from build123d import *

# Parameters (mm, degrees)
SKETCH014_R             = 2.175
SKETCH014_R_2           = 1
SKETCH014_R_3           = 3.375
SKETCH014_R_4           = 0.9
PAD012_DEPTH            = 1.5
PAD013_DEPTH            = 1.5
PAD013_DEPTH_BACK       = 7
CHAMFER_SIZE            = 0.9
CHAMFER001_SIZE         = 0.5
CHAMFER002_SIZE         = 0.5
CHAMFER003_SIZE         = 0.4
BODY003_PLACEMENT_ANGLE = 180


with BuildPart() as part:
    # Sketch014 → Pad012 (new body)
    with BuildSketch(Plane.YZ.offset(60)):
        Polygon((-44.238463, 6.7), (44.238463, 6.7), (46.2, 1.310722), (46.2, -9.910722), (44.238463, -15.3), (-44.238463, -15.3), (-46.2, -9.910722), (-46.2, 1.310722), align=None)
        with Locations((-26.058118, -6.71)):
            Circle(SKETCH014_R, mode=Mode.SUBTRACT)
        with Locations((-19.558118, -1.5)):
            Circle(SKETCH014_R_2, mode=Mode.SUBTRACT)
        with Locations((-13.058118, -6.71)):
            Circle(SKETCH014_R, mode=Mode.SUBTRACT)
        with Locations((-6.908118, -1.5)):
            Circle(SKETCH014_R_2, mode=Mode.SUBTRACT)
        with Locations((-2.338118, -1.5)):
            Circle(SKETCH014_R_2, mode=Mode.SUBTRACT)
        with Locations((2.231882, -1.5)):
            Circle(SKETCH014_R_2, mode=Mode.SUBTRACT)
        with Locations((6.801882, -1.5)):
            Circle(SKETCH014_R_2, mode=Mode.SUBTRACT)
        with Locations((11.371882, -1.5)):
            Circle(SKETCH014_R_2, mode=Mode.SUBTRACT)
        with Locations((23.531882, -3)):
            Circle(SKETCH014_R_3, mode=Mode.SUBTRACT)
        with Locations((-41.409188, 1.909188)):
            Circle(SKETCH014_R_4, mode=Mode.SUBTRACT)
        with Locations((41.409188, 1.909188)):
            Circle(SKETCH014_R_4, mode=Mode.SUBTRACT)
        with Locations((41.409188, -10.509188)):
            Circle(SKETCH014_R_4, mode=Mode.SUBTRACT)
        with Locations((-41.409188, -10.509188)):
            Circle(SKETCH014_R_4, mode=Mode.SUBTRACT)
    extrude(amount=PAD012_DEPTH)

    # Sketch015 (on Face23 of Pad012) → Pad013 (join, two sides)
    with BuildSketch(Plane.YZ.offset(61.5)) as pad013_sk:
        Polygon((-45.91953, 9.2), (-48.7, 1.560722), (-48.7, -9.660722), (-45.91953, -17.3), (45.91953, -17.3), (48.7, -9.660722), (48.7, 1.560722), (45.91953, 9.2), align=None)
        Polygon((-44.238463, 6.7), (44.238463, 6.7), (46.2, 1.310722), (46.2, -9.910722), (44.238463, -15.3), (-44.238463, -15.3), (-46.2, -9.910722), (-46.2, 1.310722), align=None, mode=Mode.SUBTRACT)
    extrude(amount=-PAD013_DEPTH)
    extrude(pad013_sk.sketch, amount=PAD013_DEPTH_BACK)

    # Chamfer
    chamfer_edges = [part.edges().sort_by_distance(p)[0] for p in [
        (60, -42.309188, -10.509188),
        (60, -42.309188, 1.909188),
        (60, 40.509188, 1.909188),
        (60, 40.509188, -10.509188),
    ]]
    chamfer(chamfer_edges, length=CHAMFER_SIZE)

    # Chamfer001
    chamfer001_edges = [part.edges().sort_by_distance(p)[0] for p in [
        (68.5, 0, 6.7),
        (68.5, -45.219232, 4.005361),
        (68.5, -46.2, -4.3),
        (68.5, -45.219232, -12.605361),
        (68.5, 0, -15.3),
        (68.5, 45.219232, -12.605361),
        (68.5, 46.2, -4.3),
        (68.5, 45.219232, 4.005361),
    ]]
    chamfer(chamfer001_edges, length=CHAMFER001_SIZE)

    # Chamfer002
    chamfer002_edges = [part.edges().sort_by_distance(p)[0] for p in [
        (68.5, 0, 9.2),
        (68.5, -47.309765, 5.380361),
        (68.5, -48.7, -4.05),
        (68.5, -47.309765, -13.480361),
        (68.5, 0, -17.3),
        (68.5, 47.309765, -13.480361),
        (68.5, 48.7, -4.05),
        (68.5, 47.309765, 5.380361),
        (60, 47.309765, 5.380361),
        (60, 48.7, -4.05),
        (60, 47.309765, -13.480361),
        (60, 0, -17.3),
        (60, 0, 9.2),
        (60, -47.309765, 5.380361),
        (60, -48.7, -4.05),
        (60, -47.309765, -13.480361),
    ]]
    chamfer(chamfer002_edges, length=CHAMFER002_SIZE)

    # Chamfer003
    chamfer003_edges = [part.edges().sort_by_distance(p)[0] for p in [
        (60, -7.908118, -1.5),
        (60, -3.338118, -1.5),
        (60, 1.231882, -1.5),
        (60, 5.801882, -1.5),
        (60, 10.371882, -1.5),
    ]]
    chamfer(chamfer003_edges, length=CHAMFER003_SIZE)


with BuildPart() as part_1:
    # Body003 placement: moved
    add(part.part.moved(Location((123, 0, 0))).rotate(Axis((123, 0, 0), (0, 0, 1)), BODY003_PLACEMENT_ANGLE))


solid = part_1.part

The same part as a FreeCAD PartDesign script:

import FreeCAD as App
import Part
import Sketcher
Q = App.Units.Quantity


def edges_at(feature, points):
    """Names of the edges that pass closest to the given points."""
    edges = feature.Shape.Edges
    near = lambda p: min(range(len(edges)), key=lambda i: edges[i].distToShape(Part.Vertex(*p))[0])
    return sorted({f"Edge{near(p) + 1}" for p in points})


def add_polygon(sketch, points):
    """Adds a closed chain of lines whose ends are joined by coincident constraints."""
    first, n = sketch.GeometryCount, len(points)
    for a, b in zip(points, points[1:] + points[:1]):
        sketch.addGeometry(Part.LineSegment(App.Vector(*a, 0), App.Vector(*b, 0)), False)
    for i in range(n):
        sketch.addConstraint(Sketcher.Constraint("Coincident", first + i, 2, first + (i + 1) % n, 1))

doc = App.newDocument("Part")
body = doc.addObject("PartDesign::Body", "Body")

sketch1 = body.newObject("Sketcher::SketchObject", "Sketch")
sketch1.AttachmentSupport = (doc.getObject("YZ_Plane"), [""])
sketch1.MapMode = "FlatFace"
sketch1.AttachmentOffset = App.Placement(App.Vector(0, 0, 60), App.Rotation())
add_polygon(sketch1, [(44.2, 6.7), (-44.2, 6.7), (-46.2, 1.3), (-46.2, -9.9), (-44.2, -15.3), (44.2, -15.3), (46.2, -9.9), (46.2, 1.3)])
sketch1.addGeometry(Part.Circle(App.Vector(41.4, -10.5, 0), App.Vector(0, 0, 1), 0.9), False)
sketch1.addGeometry(Part.Circle(App.Vector(-41.4, -10.5, 0), App.Vector(0, 0, 1), 0.9), False)
sketch1.addGeometry(Part.Circle(App.Vector(-13.1, -6.7, 0), App.Vector(0, 0, 1), 2.2), False)
sketch1.addGeometry(Part.Circle(App.Vector(-26.1, -6.7, 0), App.Vector(0, 0, 1), 2.2), False)
sketch1.addGeometry(Part.Circle(App.Vector(23.5, -3, 0), App.Vector(0, 0, 1), 3.4), False)
sketch1.addGeometry(Part.Circle(App.Vector(11.4, -1.5, 0), App.Vector(0, 0, 1), 1), False)
sketch1.addGeometry(Part.Circle(App.Vector(6.8, -1.5, 0), App.Vector(0, 0, 1), 1), False)
sketch1.addGeometry(Part.Circle(App.Vector(2.2, -1.5, 0), App.Vector(0, 0, 1), 1), False)
sketch1.addGeometry(Part.Circle(App.Vector(41.4, 1.9, 0), App.Vector(0, 0, 1), 0.9), False)
sketch1.addGeometry(Part.Circle(App.Vector(-2.3, -1.5, 0), App.Vector(0, 0, 1), 1), False)
sketch1.addGeometry(Part.Circle(App.Vector(-6.9, -1.5, 0), App.Vector(0, 0, 1), 1), False)
sketch1.addGeometry(Part.Circle(App.Vector(-19.6, -1.5, 0), App.Vector(0, 0, 1), 1), False)
sketch1.addGeometry(Part.Circle(App.Vector(-41.4, 1.9, 0), App.Vector(0, 0, 1), 0.9), False)
sketch1.addConstraint([
    Sketcher.Constraint("Horizontal", 0),
    Sketcher.Constraint("Vertical", 2),
    Sketcher.Constraint("Horizontal", 4),
    Sketcher.Constraint("Vertical", 6),
    Sketcher.Constraint("Equal", 8, 9),
    Sketcher.Constraint("Equal", 10, 11),
    Sketcher.Constraint("Equal", 13, 14),
    Sketcher.Constraint("Equal", 14, 15),
    Sketcher.Constraint("Equal", 9, 16),
    Sketcher.Constraint("Equal", 15, 17),
    Sketcher.Constraint("Equal", 17, 18),
    Sketcher.Constraint("Equal", 18, 19),
    Sketcher.Constraint("Equal", 16, 20),
    Sketcher.Constraint("Symmetric", 8, 3, 9, 3, -2),
    Sketcher.Constraint("Symmetric", 16, 3, 20, 3, -2),
    Sketcher.Constraint("Symmetric", 2, 2, 5, 2, -2),
    Sketcher.Constraint("Parallel", 1, 5),
    Sketcher.Constraint("Parallel", 3, 7),
    Sketcher.Constraint("Horizontal", 10, 3, 11, 3),
    Sketcher.Constraint("Horizontal", 13, 3, 14, 3),
    Sketcher.Constraint("Horizontal", 14, 3, 15, 3),
    Sketcher.Constraint("Horizontal", 15, 3, 17, 3),
    Sketcher.Constraint("Horizontal", 17, 3, 18, 3),
    Sketcher.Constraint("Horizontal", 18, 3, 19, 3),
    Sketcher.Constraint("Horizontal", 1, 2, 6, 2),
    Sketcher.Constraint("Vertical", 8, 3, 16, 3),
    Sketcher.Constraint("Vertical", 0, 2, 3, 2),
    Sketcher.Constraint("Vertical", 4, 2, 7, 2),
    Sketcher.Constraint("Diameter", 13, 2.0),
    Sketcher.Constraint("Diameter", 8, 1.8),
    Sketcher.Constraint("Diameter", 10, 4.35),
    Sketcher.Constraint("Diameter", 12, 6.75),
    Sketcher.Constraint("Angle", 1, Q("-110.000002 deg")),
    Sketcher.Constraint("DistanceY", 12, 3, -1, 1, 3.0),
    Sketcher.Constraint("DistanceX", 11, 3, 10, 3, 13.0),
    Sketcher.Constraint("DistanceY", 4, 2, 7, 2, 22.0),
    Sketcher.Constraint("DistanceY", 13, 3, -1, 1, 1.5),
    Sketcher.Constraint("DistanceY", -1, 1, 0, 2, 6.7),
    Sketcher.Constraint("DistanceX", 1, 2, -1, 1, 46.2),
    Sketcher.Constraint("DistanceX", 15, 3, 12, 3, 21.3),
    Sketcher.Constraint("DistanceX", 19, 3, 10, 3, 6.5),
    Sketcher.Constraint("DistanceY", 10, 3, -1, 1, 6.71),
    Sketcher.Constraint("DistanceX", 10, 3, 12, 3, 36.59),
    Sketcher.Constraint("DistanceX", 13, 3, 12, 3, 12.16),
    Sketcher.Constraint("DistanceX", 14, 3, 13, 3, 4.57),
    Sketcher.Constraint("DistanceX", 17, 3, 15, 3, 4.57),
    Sketcher.Constraint("DistanceX", 18, 3, 17, 3, 4.57),
    Sketcher.Constraint("Distance", 1, 5.73515),
    Sketcher.Constraint("DistanceX", 11, 3, -1, 1, 26.058118),
    Sketcher.Constraint("DistanceY", -1, 1, 16, 3, 1.909188),
    Sketcher.Constraint("DistanceX", 9, 3, 10, 3, 28.35107),
    Sketcher.Constraint("DistanceY", 9, 3, 10, 3, 3.799188),
])
pad1 = body.newObject("PartDesign::Pad", "Pad")
pad1.Profile = sketch1
pad1.Length = 1.5

sketch2 = body.newObject("Sketcher::SketchObject", "Sketch001")
sketch2.AttachmentSupport = (doc.getObject("YZ_Plane"), [""])
sketch2.MapMode = "FlatFace"
sketch2.AttachmentOffset = App.Placement(App.Vector(0, 0, 61.5), App.Rotation())
add_polygon(sketch2, [(-46, 9), (-49, 2), (-49, -10), (-46, -17), (46, -17), (49, -10), (49, 2), (46, 9)])
add_polygon(sketch2, [(-46, 1), (-44, 7), (44, 7), (46, 1), (46, -10), (44, -15), (-44, -15), (-46, -10)])
sketch2.addConstraint([
    Sketcher.Constraint("Vertical", 1),
    Sketcher.Constraint("Horizontal", 3),
    Sketcher.Constraint("Vertical", 5),
    Sketcher.Constraint("Horizontal", 7),
    Sketcher.Constraint("Horizontal", 9),
    Sketcher.Constraint("Vertical", 11),
    Sketcher.Constraint("Horizontal", 13),
    Sketcher.Constraint("Vertical", 15),
    Sketcher.Constraint("Symmetric", 1, 2, 4, 2, -2),
    Sketcher.Constraint("Symmetric", 11, 2, 14, 2, -2),
    Sketcher.Constraint("Parallel", 0, 4),
    Sketcher.Constraint("Parallel", 2, 6),
    Sketcher.Constraint("Parallel", 4, 8),
    Sketcher.Constraint("Parallel", 6, 10),
    Sketcher.Constraint("Parallel", 8, 12),
    Sketcher.Constraint("Parallel", 10, 14),
    Sketcher.Constraint("Horizontal", 0, 2, 5, 2),
    Sketcher.Constraint("Horizontal", 10, 2, 15, 2),
    Sketcher.Constraint("Vertical", 3, 2, 6, 2),
    Sketcher.Constraint("Vertical", 2, 2, 7, 2),
    Sketcher.Constraint("Vertical", 9, 2, 12, 2),
    Sketcher.Constraint("Equal", 5, 11),
    Sketcher.Constraint("Angle", 0, Q("-110.000001 deg")),
    Sketcher.Constraint("DistanceY", 2, 2, 8, 2, 24.0),
    Sketcher.Constraint("DistanceY", 3, 2, 12, 2, 2.0),
    Sketcher.Constraint("DistanceX", 0, 2, -1, 1, 48.7),
    Sketcher.Constraint("DistanceY", 2, 2, -1, 1, 17.3),
    Sketcher.Constraint("DistanceY", -1, 1, 6, 2, 9.2),
    Sketcher.Constraint("DistanceX", -1, 1, 10, 2, 46.2),
    Sketcher.Constraint("DistanceX", 3, 1, 3, 2, 91.83906),
])
pad2 = body.newObject("PartDesign::Pad", "Pad001")
pad2.Profile = sketch2
pad2.Type = "TwoLengths"
pad2.Length = 1.5
pad2.Length2 = 7
pad2.Reversed = True
doc.recompute()

chamfer = body.newObject("PartDesign::Chamfer", "Chamfer")
chamfer.Base = (pad2, edges_at(pad2, [
    (60, -42.309, -10.509),
    (60, -42.309, 1.909),
    (60, 40.509, 1.909),
    (60, 40.509, -10.509),
]))
chamfer.Size = 0.9
doc.recompute()

chamfer2 = body.newObject("PartDesign::Chamfer", "Chamfer001")
chamfer2.Base = (chamfer, edges_at(chamfer, [
    (68.5, 0, 6.7),
    (68.5, -45.219, 4.005),
    (68.5, -46.2, -4.3),
    (68.5, -45.219, -12.605),
    (68.5, 0, -15.3),
    (68.5, 45.219, -12.605),
    (68.5, 46.2, -4.3),
    (68.5, 45.219, 4.005),
]))
chamfer2.Size = 0.5
doc.recompute()

chamfer3 = body.newObject("PartDesign::Chamfer", "Chamfer002")
chamfer3.Base = (chamfer2, edges_at(chamfer2, [
    (68.5, 0, 9.2),
    (68.5, -47.31, 5.38),
    (68.5, -48.7, -4.05),
    (68.5, -47.31, -13.48),
    (68.5, 0, -17.3),
    (68.5, 47.31, -13.48),
    (68.5, 48.7, -4.05),
    (68.5, 47.31, 5.38),
    (60, 47.31, 5.38),
    (60, 48.7, -4.05),
    (60, 47.31, -13.48),
    (60, 0, -17.3),
    (60, 0, 9.2),
    (60, -47.31, 5.38),
    (60, -48.7, -4.05),
    (60, -47.31, -13.48),
]))
chamfer3.Size = 0.5
doc.recompute()

chamfer4 = body.newObject("PartDesign::Chamfer", "Chamfer003")
chamfer4.Base = (chamfer3, edges_at(chamfer3, [
    (60, -7.908, -1.5),
    (60, -3.338, -1.5),
    (60, 1.232, -1.5),
    (60, 5.802, -1.5),
    (60, 10.372, -1.5),
]))
chamfer4.Size = 0.4
body2 = doc.addObject("PartDesign::Body", "Body001")
doc.recompute()

body.Placement = App.Placement(App.Vector(123, 0, 0), App.Rotation(App.Vector(0, 0, 1), 180))
boolean = body2.newObject("PartDesign::Boolean", "Boolean")
boolean.Type = "Fuse"
boolean.addObjects([body])

doc.recompute()
